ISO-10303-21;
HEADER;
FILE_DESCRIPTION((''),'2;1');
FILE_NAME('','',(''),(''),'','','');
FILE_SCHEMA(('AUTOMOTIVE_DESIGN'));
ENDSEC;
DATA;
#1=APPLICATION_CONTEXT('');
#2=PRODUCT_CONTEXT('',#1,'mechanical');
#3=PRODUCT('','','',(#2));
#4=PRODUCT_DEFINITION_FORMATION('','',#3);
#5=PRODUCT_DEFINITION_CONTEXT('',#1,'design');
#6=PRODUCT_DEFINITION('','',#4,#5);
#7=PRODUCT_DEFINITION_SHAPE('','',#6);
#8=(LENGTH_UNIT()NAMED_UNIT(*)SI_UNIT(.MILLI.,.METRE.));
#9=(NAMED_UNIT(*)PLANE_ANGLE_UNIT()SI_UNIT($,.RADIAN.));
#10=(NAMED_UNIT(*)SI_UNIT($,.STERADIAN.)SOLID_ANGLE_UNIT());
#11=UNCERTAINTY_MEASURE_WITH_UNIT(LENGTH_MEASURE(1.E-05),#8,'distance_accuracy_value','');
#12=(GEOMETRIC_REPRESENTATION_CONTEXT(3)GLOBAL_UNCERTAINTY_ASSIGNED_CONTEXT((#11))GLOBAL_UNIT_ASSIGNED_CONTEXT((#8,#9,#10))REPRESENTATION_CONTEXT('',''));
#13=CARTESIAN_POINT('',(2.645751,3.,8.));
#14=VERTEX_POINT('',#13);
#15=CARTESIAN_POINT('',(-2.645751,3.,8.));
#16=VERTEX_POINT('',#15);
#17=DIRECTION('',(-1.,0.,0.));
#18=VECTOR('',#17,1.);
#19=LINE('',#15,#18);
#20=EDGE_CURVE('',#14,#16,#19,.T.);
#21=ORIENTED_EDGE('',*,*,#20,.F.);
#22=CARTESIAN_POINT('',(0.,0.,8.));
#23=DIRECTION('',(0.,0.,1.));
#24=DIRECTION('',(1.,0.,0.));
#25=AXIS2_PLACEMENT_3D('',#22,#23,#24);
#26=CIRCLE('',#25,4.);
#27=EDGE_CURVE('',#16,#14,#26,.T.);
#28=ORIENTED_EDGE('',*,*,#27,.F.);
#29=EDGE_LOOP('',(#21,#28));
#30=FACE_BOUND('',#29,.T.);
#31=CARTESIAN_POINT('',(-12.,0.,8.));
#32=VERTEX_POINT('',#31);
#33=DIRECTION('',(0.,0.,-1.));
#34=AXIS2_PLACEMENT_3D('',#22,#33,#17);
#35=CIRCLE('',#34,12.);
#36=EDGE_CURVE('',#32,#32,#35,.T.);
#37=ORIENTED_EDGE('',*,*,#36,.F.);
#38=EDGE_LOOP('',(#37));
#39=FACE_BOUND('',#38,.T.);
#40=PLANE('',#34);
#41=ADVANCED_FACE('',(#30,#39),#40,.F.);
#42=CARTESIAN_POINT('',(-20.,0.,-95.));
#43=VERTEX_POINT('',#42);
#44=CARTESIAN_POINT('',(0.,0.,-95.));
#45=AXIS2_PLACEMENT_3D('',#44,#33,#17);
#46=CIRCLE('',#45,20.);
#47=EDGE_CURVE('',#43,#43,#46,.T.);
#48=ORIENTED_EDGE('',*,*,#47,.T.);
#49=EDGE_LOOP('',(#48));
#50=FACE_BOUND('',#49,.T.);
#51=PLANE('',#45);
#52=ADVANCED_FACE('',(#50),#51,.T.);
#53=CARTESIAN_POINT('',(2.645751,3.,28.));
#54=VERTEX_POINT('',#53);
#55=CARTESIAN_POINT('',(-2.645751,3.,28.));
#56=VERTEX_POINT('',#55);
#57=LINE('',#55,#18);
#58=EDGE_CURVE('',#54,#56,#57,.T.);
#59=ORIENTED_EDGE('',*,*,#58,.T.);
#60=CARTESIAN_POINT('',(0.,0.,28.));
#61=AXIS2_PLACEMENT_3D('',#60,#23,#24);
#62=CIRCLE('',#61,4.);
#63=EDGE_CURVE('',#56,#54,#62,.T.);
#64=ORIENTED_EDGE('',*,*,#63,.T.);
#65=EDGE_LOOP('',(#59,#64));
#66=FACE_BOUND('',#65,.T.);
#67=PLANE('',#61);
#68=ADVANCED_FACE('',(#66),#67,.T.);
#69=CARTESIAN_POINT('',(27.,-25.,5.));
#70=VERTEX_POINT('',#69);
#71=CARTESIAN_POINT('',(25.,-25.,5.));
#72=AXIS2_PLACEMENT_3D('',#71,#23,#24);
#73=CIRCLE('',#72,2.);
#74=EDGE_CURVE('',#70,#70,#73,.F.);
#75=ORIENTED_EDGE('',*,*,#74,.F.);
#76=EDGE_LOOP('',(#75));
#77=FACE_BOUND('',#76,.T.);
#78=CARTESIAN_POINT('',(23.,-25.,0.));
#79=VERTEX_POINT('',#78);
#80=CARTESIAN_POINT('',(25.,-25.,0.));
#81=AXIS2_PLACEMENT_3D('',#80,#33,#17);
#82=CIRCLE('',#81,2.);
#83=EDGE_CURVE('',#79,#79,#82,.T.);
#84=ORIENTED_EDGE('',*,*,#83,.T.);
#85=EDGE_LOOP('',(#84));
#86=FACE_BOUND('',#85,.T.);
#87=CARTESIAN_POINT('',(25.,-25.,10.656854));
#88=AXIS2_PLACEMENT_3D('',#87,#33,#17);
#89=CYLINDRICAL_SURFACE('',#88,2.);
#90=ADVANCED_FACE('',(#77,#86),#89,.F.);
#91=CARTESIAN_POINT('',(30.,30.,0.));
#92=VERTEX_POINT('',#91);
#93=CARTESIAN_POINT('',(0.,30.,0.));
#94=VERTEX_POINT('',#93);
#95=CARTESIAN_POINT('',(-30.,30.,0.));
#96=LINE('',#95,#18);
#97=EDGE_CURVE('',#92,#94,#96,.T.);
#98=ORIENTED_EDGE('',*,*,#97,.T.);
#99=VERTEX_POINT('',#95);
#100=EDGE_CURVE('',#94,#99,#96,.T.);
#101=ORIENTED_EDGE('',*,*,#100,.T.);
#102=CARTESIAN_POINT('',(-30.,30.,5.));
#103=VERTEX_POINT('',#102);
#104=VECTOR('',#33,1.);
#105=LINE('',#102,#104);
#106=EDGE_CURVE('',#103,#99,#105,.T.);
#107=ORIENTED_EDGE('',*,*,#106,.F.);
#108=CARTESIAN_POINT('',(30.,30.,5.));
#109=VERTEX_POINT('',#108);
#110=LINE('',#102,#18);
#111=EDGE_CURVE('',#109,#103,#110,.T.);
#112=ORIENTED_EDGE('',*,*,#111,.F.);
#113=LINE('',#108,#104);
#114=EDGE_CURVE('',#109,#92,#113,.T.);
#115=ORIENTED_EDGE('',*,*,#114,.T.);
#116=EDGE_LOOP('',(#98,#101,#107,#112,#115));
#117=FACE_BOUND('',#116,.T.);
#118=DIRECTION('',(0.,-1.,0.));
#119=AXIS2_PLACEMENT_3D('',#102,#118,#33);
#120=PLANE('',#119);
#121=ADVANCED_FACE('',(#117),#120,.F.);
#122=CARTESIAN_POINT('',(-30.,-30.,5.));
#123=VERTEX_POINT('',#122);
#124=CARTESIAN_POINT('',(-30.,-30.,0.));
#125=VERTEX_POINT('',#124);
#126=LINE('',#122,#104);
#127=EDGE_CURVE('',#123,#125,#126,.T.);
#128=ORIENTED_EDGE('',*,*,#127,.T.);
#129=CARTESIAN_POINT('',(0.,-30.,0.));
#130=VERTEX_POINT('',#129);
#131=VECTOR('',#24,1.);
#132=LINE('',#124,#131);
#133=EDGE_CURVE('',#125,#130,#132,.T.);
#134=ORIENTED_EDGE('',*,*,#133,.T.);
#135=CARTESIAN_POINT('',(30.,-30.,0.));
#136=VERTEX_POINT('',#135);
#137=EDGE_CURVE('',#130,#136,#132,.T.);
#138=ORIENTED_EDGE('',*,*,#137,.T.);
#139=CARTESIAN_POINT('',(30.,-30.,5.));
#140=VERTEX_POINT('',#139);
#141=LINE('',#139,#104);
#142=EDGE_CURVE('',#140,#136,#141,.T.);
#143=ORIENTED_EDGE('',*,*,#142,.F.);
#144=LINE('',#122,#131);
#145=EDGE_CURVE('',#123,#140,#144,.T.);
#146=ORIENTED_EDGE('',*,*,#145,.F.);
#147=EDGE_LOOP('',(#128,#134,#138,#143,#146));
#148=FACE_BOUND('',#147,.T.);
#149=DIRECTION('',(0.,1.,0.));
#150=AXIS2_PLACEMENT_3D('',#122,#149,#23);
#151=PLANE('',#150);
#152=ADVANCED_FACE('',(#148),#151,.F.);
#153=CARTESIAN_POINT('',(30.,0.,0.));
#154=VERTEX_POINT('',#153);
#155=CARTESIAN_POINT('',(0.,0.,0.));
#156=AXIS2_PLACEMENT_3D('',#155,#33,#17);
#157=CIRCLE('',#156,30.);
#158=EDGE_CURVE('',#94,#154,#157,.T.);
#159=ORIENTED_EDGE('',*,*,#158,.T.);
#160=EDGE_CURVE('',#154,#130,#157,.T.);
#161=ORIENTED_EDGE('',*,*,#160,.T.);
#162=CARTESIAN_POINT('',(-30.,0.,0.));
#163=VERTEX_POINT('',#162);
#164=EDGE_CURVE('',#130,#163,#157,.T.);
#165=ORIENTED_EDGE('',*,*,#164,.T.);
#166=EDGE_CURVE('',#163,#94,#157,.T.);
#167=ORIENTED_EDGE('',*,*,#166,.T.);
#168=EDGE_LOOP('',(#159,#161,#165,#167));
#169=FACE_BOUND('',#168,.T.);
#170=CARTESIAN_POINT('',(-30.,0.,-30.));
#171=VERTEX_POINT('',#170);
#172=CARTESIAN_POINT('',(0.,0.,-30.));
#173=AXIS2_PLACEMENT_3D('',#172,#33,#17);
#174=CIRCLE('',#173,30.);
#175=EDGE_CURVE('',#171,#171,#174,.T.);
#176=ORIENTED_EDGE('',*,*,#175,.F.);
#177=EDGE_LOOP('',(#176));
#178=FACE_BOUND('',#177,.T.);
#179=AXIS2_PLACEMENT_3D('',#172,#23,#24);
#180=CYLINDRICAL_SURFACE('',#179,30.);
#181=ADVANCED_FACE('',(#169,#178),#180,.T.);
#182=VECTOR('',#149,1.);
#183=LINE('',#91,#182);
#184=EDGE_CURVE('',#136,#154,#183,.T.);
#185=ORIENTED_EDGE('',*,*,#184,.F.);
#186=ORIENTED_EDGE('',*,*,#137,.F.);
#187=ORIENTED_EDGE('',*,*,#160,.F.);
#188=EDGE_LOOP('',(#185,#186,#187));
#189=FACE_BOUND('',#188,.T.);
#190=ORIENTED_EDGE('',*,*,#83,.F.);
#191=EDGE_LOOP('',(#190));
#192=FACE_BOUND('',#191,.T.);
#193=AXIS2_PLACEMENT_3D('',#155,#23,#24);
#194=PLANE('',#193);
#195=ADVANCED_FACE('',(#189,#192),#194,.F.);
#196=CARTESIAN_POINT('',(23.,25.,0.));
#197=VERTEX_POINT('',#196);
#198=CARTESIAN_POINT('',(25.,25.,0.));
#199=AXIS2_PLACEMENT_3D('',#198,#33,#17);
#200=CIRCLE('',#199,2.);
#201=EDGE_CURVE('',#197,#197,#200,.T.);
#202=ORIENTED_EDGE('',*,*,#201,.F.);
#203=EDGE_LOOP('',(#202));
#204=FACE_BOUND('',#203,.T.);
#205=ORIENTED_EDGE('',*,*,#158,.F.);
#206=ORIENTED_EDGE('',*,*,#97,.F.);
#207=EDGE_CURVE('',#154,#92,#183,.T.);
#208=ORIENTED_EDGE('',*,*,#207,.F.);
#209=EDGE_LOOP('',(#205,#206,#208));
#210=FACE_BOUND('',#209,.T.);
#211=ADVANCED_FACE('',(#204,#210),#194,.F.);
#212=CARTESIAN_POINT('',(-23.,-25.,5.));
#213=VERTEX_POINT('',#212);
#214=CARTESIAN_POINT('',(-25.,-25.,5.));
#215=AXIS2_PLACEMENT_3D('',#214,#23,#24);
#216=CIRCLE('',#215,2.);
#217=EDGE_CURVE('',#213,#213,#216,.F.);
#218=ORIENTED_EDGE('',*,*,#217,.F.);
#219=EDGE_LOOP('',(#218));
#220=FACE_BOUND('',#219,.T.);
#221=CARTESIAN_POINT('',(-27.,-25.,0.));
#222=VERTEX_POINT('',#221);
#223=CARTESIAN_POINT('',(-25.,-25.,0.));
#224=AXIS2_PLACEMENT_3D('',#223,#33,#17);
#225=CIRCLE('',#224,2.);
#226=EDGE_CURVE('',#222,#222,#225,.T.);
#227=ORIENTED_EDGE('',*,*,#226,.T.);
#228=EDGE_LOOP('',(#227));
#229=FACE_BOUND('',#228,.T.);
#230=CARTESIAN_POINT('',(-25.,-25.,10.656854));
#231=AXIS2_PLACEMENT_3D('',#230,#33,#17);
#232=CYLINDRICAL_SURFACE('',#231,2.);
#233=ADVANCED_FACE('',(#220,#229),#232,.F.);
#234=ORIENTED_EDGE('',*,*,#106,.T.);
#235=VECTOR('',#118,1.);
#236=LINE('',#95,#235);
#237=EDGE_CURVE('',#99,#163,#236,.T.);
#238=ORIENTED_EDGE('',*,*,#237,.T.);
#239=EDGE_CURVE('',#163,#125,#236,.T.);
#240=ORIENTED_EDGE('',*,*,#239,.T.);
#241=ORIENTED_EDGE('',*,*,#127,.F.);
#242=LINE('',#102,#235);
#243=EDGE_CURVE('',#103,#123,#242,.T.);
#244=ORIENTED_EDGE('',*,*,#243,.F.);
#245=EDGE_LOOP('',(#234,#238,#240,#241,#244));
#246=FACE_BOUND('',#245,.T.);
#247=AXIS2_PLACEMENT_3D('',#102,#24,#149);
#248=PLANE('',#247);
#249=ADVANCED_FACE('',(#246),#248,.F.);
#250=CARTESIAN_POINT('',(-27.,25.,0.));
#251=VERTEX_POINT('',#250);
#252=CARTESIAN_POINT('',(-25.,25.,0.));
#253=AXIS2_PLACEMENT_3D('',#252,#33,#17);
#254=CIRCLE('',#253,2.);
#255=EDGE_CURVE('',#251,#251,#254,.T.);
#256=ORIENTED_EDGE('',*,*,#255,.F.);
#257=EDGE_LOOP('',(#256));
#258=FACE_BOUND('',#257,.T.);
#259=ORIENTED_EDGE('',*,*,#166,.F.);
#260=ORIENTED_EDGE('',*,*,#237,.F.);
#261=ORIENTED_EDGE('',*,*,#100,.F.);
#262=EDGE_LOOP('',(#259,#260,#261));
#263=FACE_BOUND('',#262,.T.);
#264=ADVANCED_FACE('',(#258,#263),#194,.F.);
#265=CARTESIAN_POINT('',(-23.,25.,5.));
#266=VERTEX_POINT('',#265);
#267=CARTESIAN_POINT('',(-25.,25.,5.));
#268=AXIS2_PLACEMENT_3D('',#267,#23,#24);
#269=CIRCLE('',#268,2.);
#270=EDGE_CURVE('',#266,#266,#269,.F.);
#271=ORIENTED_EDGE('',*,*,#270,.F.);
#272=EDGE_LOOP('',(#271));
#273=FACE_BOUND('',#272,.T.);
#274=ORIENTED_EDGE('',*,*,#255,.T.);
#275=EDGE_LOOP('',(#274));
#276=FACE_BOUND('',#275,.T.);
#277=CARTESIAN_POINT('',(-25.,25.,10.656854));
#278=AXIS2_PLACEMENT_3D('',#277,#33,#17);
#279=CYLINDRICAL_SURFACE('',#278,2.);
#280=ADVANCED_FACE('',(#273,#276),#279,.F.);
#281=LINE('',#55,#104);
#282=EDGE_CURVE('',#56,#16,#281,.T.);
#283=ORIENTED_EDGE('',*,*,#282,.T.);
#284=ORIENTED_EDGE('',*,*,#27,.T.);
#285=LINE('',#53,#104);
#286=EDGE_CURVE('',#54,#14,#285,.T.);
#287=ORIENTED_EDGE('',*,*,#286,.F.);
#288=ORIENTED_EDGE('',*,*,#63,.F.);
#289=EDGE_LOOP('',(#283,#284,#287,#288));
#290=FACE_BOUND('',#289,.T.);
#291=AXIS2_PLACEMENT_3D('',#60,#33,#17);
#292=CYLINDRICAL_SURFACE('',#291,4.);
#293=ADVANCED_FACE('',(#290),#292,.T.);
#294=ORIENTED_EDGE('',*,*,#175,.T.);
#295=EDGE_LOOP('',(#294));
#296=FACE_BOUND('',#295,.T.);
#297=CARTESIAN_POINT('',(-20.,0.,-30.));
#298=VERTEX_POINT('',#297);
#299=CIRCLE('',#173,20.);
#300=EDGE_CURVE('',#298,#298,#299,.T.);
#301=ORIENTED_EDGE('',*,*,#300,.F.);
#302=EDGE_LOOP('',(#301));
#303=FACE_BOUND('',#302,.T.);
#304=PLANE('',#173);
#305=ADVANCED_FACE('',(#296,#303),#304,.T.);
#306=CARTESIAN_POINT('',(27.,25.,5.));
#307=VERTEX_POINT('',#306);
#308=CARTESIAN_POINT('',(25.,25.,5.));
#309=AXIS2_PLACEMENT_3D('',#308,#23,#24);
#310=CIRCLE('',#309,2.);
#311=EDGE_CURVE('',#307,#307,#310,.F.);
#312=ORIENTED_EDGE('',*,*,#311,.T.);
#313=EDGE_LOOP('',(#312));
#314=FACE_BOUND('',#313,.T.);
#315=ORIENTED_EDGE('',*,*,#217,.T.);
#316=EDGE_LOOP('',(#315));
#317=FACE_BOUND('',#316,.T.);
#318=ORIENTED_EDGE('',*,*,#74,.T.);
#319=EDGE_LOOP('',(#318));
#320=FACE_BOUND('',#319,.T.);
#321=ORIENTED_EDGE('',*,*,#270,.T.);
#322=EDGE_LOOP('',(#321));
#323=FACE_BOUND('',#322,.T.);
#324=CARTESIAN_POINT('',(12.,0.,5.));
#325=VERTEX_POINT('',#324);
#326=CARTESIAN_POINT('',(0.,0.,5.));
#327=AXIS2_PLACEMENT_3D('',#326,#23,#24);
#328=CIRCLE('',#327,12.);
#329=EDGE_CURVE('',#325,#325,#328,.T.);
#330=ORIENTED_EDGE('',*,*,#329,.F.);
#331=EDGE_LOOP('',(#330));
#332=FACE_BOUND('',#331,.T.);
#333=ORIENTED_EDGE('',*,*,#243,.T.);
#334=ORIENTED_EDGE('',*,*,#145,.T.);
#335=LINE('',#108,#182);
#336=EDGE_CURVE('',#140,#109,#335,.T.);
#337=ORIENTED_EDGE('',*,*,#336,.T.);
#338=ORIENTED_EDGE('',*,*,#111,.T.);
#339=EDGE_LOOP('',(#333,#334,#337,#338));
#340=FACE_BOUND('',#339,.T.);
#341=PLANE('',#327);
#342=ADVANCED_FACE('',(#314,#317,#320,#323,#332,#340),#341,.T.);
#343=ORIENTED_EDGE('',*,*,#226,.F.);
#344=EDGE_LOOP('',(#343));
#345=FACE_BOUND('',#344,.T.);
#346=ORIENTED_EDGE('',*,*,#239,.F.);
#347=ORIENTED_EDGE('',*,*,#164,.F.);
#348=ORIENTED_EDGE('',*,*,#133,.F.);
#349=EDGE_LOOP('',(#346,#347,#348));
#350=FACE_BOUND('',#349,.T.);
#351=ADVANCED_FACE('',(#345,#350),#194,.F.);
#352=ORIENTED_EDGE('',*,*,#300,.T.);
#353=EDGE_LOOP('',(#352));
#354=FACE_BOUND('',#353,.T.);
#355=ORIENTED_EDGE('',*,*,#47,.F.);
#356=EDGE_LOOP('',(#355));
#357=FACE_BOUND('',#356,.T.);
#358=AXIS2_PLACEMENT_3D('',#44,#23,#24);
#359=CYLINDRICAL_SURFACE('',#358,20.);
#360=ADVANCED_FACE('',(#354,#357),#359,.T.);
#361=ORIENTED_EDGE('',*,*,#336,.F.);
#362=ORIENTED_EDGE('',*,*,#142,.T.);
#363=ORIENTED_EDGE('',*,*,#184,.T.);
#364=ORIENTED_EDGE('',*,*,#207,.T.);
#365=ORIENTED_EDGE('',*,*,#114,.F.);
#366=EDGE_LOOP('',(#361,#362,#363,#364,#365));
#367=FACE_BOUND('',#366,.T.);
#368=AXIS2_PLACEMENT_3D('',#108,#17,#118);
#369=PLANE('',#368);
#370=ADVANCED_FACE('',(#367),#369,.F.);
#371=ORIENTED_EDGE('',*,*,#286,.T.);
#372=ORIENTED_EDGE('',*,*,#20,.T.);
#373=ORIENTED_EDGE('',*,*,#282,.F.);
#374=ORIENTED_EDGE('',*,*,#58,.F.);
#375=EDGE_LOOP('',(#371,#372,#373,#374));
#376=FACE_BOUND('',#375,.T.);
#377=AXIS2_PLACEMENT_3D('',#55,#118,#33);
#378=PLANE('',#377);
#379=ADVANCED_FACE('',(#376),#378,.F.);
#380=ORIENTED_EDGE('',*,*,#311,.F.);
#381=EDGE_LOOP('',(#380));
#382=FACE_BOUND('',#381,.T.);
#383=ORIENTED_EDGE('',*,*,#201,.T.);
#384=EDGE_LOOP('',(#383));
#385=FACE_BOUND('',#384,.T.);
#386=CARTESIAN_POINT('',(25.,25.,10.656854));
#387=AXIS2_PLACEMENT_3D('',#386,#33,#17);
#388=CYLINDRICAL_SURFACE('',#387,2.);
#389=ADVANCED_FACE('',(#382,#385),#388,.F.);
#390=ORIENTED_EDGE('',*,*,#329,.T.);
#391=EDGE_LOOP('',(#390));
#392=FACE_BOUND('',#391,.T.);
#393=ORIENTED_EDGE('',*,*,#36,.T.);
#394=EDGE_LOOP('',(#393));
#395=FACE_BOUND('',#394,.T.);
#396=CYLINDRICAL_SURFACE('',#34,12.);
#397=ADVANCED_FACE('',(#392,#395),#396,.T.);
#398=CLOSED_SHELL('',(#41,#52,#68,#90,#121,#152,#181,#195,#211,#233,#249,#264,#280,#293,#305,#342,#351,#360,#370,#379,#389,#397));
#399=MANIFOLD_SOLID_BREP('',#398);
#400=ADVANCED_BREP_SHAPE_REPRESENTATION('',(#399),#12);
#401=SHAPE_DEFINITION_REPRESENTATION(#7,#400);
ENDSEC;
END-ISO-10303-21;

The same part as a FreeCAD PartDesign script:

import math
import FreeCAD as App
import Part
import Sketcher

doc = App.newDocument("Part")
body = doc.addObject("PartDesign::Body", "Body")

# Sketch on XY plane
sketch1 = doc.addObject("Sketcher::SketchObject", "Sketch")
body.addObject(sketch1)
sketch1.AttachmentSupport = (doc.XY_Plane, [""])
sketch1.MapMode = "FlatFace"
sketch1.addGeometry([
    Part.LineSegment(App.Vector(-30, 30, 0), App.Vector(-30, -30, 0)),
    Part.LineSegment(App.Vector(-30, -30, 0), App.Vector(30, -30, 0)),
    Part.LineSegment(App.Vector(30, -30, 0), App.Vector(30, 30, 0)),
    Part.LineSegment(App.Vector(30, 30, 0), App.Vector(-30, 30, 0)),
], False)
sketch1.addConstraint([
    Sketcher.Constraint("Coincident", 0, 2, 1, 1),
    Sketcher.Constraint("Coincident", 1, 2, 2, 1),
    Sketcher.Constraint("Coincident", 2, 2, 3, 1),
    Sketcher.Constraint("Coincident", 3, 2, 0, 1),
    Sketcher.Constraint("Vertical", 0),
    Sketcher.Constraint("Horizontal", 1),
    Sketcher.Constraint("Vertical", 2),
    Sketcher.Constraint("Horizontal", 3),
    Sketcher.Constraint("Symmetric", 0, 2, 2, 2, -1, 1),
    Sketcher.Constraint("Equal", 3, 0),
    Sketcher.Constraint("DistanceX", 1, 1, 1, 2, 60.0),
])
pad1 = doc.addObject("PartDesign::Pad", "Pad")
body.addObject(pad1)
pad1.Profile = sketch1
pad1.Length = 5

# Sketch on XY plane
sketch2 = doc.addObject("Sketcher::SketchObject", "Sketch001")
body.addObject(sketch2)
sketch2.AttachmentSupport = (doc.XY_Plane, [""])
sketch2.MapMode = "FlatFace"
sketch2.addGeometry([
    Part.Circle(App.Vector(25, 25, 0), App.Vector(0, 0, 1), 2),
    Part.Circle(App.Vector(-25, 25, 0), App.Vector(0, 0, 1), 2),
    Part.Circle(App.Vector(-25, -25, 0), App.Vector(0, 0, 1), 2),
    Part.Circle(App.Vector(25, -25, 0), App.Vector(0, 0, 1), 2),
], False)
sketch2.addConstraint([
    Sketcher.Constraint("Equal", 0, 1),
    Sketcher.Constraint("Equal", 1, 2),
    Sketcher.Constraint("Equal", 2, 3),
    Sketcher.Constraint("Symmetric", 0, 3, 2, 3, -1, 1),
    Sketcher.Constraint("Symmetric", 1, 3, 3, 3, -1, 1),
    Sketcher.Constraint("Symmetric", 0, 3, 1, 3, -2),
    Sketcher.Constraint("Diameter", 0, 4.0),
    Sketcher.Constraint("DistanceX", -1, 1, 0, 3, 25.0),
    Sketcher.Constraint("DistanceY", -1, 1, 0, 3, 25.0),
])
pocket1 = doc.addObject("PartDesign::Pocket", "Pocket")
body.addObject(pocket1)
pocket1.Profile = sketch2
pocket1.Length = 5
pocket1.Reversed = True

# Sketch on XY plane
sketch3 = doc.addObject("Sketcher::SketchObject", "Sketch002")
body.addObject(sketch3)
sketch3.AttachmentSupport = (doc.XY_Plane, [""])
sketch3.MapMode = "FlatFace"
sketch3.addGeometry(Part.Circle(App.Vector(0, 0, 0), App.Vector(0, 0, 1), 12), False)
sketch3.addConstraint([
    Sketcher.Constraint("Coincident", 0, 3, -1, 1),
    Sketcher.Constraint("Diameter", 0, 24.0),
])
pad2 = doc.addObject("PartDesign::Pad", "Pad001")
body.addObject(pad2)
pad2.Profile = sketch3
pad2.Length = 8

# Sketch on XY plane
sketch4 = doc.addObject("Sketcher::SketchObject", "Sketch003")
body.addObject(sketch4)
sketch4.AttachmentSupport = (doc.XY_Plane, [""])
sketch4.MapMode = "FlatFace"
sketch4.AttachmentOffset = App.Placement(App.Vector(0, 0, 8), App.Rotation())
sketch4.addGeometry([
    Part.LineSegment(App.Vector(2.645751, 3, 0), App.Vector(-2.645751, 3, 0)),
    Part.ArcOfCircle(Part.Circle(App.Vector(0, 0, 0), App.Vector(0, 0, 1), 4), math.radians(131.409622), math.radians(408.590378)),
], False)
sketch4.addConstraint([
    Sketcher.Constraint("Coincident", 0, 1, 1, 2),
    Sketcher.Constraint("Coincident", 1, 1, 0, 2),
    Sketcher.Constraint("Horizontal", 0),
    Sketcher.Constraint("Coincident", 1, 3, -1, 1),
    Sketcher.Constraint("Radius", 1, 4.0),
    Sketcher.Constraint("DistanceY", -1, 1, 0, 1, 3.0),
])
pad3 = doc.addObject("PartDesign::Pad", "Pad002")
body.addObject(pad3)
pad3.Profile = sketch4
pad3.Length = 20

# Sketch on XY plane
sketch5 = doc.addObject("Sketcher::SketchObject", "Sketch004")
body.addObject(sketch5)
sketch5.AttachmentSupport = (doc.XY_Plane, [""])
sketch5.MapMode = "FlatFace"
sketch5.addGeometry(Part.Circle(App.Vector(0, 0, 0), App.Vector(0, 0, 1), 30), False)
sketch5.addConstraint([
    Sketcher.Constraint("Coincident", 0, 3, -1, 1),
    Sketcher.Constraint("Diameter", 0, 60.0),
])
pad4 = doc.addObject("PartDesign::Pad", "Pad003")
body.addObject(pad4)
pad4.Profile = sketch5
pad4.Length = 30
pad4.Reversed = True

# Sketch on XY plane
sketch6 = doc.addObject("Sketcher::SketchObject", "Sketch005")
body.addObject(sketch6)
sketch6.AttachmentSupport = (doc.XY_Plane, [""])
sketch6.MapMode = "FlatFace"
sketch6.AttachmentOffset = App.Placement(App.Vector(0, 0, -30), App.Rotation())
sketch6.addGeometry(Part.Circle(App.Vector(0, 0, 0), App.Vector(0, 0, 1), 20), False)
sketch6.addConstraint([
    Sketcher.Constraint("Coincident", 0, 3, -1, 1),
    Sketcher.Constraint("Diameter", 0, 40.0),
])
pad5 = doc.addObject("PartDesign::Pad", "Pad004")
body.addObject(pad5)
pad5.Profile = sketch6
pad5.Length = 65
pad5.Reversed = True

doc.recompute()
